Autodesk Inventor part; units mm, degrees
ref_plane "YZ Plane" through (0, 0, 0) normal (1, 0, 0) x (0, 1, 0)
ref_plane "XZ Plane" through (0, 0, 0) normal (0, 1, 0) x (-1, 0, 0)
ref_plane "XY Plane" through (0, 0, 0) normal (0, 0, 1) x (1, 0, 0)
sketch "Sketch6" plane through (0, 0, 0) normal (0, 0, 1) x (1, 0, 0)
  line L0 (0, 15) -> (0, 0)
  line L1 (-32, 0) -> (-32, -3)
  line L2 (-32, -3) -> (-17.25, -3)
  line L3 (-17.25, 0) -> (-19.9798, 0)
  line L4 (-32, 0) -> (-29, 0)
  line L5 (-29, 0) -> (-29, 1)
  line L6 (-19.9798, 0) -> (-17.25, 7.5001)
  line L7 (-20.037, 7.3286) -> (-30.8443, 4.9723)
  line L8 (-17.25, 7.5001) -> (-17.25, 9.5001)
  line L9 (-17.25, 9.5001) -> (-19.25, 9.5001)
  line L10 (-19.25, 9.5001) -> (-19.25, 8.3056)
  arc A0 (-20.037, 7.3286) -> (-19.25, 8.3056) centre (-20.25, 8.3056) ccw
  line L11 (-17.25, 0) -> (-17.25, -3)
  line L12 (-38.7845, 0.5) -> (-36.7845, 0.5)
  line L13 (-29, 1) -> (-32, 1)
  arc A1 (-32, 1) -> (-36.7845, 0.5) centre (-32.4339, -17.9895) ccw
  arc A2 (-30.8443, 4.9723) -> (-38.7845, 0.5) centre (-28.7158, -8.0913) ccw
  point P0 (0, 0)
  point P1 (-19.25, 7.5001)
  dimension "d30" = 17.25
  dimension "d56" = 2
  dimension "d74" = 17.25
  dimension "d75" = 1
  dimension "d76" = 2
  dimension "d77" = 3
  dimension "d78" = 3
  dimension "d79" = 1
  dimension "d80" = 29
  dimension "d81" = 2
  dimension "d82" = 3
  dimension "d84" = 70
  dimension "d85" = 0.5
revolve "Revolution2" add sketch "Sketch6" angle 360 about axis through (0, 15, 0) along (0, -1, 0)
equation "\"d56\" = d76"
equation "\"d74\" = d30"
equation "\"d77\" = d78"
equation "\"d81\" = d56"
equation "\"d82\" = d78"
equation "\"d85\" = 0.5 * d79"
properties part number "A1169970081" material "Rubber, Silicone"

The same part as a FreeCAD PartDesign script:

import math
import FreeCAD as App
import Part
import Sketcher
Q = App.Units.Quantity

doc = App.newDocument("Part")
params = doc.addObject("Spreadsheet::Sheet", "Params")
for row, (alias, value) in enumerate([
    ("sketch1_radius", "1 mm"),
    ("sketch1_width", "3 mm"),
    ("sketch1_width2", "2 mm"),
    ("sketch1_height", "1 mm"),
    ("revolution_angle", "360 deg"),
], start=1):
    params.set(f"A{row}", alias)
    params.set(f"B{row}", "=" + value)
    params.setAlias(f"B{row}", alias)

body = doc.addObject("PartDesign::Body", "Body")

sketch1 = body.newObject("Sketcher::SketchObject", "Sketch")
sketch1.AttachmentSupport = (doc.getObject("XY_Plane"), [""])
sketch1.MapMode = "FlatFace"
sketch1.addGeometry(Part.LineSegment(App.Vector(-29, 0, 0), App.Vector(-32, 0, 0)), False)
sketch1.addGeometry(Part.LineSegment(App.Vector(-32, 0, 0), App.Vector(-32, -3, 0)), False)
sketch1.addGeometry(Part.LineSegment(App.Vector(-32, -3, 0), App.Vector(-17.2, -3, 0)), False)
sketch1.addGeometry(Part.LineSegment(App.Vector(-17.2, -3, 0), App.Vector(-17.2, 0, 0)), False)
sketch1.addGeometry(Part.LineSegment(App.Vector(-17.2, 0, 0), App.Vector(-20, 0, 0)), False)
sketch1.addGeometry(Part.LineSegment(App.Vector(-20, 0, 0), App.Vector(-17.2, 7.5, 0)), False)
sketch1.addGeometry(Part.LineSegment(App.Vector(-17.2, 7.5, 0), App.Vector(-17.2, 9.5, 0)), False)
sketch1.addGeometry(Part.LineSegment(App.Vector(-17.2, 9.5, 0), App.Vector(-19.2, 9.5, 0)), False)
sketch1.addGeometry(Part.LineSegment(App.Vector(-19.2, 9.5, 0), App.Vector(-19.2, 8.3, 0)), False)
sketch1.addGeometry(Part.ArcOfCircle(Part.Circle(App.Vector(-20.2, 8.3, 0), App.Vector(0, 0, 1), 1), math.radians(-78), math.radians(0)), False)
sketch1.addGeometry(Part.LineSegment(App.Vector(-20, 7.3, 0), App.Vector(-30.8, 5, 0)), False)
sketch1.addGeometry(Part.ArcOfCircle(Part.Circle(App.Vector(-28.7, -8.1, 0), App.Vector(0, 0, 1), 13.2), math.radians(99), math.radians(140)), False)
sketch1.addGeometry(Part.LineSegment(App.Vector(-38.8, 0.5, 0), App.Vector(-36.8, 0.5, 0)), False)
sketch1.addGeometry(Part.ArcOfCircle(Part.Circle(App.Vector(-32.4, -18, 0), App.Vector(0, 0, 1), 19), math.radians(88.69), math.radians(103.24)), False)
sketch1.addGeometry(Part.LineSegment(App.Vector(-32, 1, 0), App.Vector(-29, 1, 0)), False)
sketch1.addGeometry(Part.LineSegment(App.Vector(-29, 1, 0), App.Vector(-29, 0, 0)), False)
sketch1.addConstraint(Sketcher.Constraint("Coincident", 0, 2, 1, 1))
sketch1.addConstraint(Sketcher.Constraint("Coincident", 1, 2, 2, 1))
sketch1.addConstraint(Sketcher.Constraint("Coincident", 2, 2, 3, 1))
sketch1.addConstraint(Sketcher.Constraint("Coincident", 3, 2, 4, 1))
sketch1.addConstraint(Sketcher.Constraint("Coincident", 4, 2, 5, 1))
sketch1.addConstraint(Sketcher.Constraint("Coincident", 5, 2, 6, 1))
sketch1.addConstraint(Sketcher.Constraint("Coincident", 6, 2, 7, 1))
sketch1.addConstraint(Sketcher.Constraint("Coincident", 7, 2, 8, 1))
sketch1.addConstraint(Sketcher.Constraint("Tangent", 8, 2, 9, 2))
sketch1.addConstraint(Sketcher.Constraint("Tangent", 9, 1, 10, 1))
sketch1.addConstraint(Sketcher.Constraint("Coincident", 10, 2, 11, 1))
sketch1.addConstraint(Sketcher.Constraint("Coincident", 11, 2, 12, 1))
sketch1.addConstraint(Sketcher.Constraint("Coincident", 12, 2, 13, 2))
sketch1.addConstraint(Sketcher.Constraint("Coincident", 13, 1, 14, 1))
sketch1.addConstraint(Sketcher.Constraint("Coincident", 14, 2, 15, 1))
sketch1.addConstraint(Sketcher.Constraint("Coincident", 15, 2, 0, 1))
sketch1.addConstraint(Sketcher.Constraint("Horizontal", 0))
sketch1.addConstraint(Sketcher.Constraint("Vertical", 1))
sketch1.addConstraint(Sketcher.Constraint("Horizontal", 2))
sketch1.addConstraint(Sketcher.Constraint("Vertical", 3))
sketch1.addConstraint(Sketcher.Constraint("Horizontal", 4))
sketch1.addConstraint(Sketcher.Constraint("Vertical", 6))
sketch1.addConstraint(Sketcher.Constraint("Horizontal", 7))
sketch1.addConstraint(Sketcher.Constraint("Vertical", 8))
sketch1.addConstraint(Sketcher.Constraint("Horizontal", 12))
sketch1.addConstraint(Sketcher.Constraint("Horizontal", 14))
sketch1.addConstraint(Sketcher.Constraint("Vertical", 15))
sketch1.addConstraint(Sketcher.Constraint("PointOnObject", 0, 2, -1))
sketch1.addConstraint(Sketcher.Constraint("PointOnObject", 3, 2, -1))
sketch1.addConstraint(Sketcher.Constraint("Vertical", 3, 2, 5, 2))
sketch1.addConstraint(Sketcher.Constraint("Vertical", 1, 2, 13, 1))
sketch1.addConstraint(Sketcher.Constraint("Equal", 7, 12))
sketch1.addConstraint(Sketcher.Constraint("Equal", 14, 1))
sketch1.addConstraint(Sketcher.Constraint("Equal", 12, 6))
sketch1.addConstraint(Sketcher.Constraint("Radius", 9, 1.0))
sketch1.addConstraint(Sketcher.Constraint("DistanceX", 0, 2, 0, 1, 3.0))
sketch1.addConstraint(Sketcher.Constraint("DistanceX", 7, 2, 7, 1, 2.0))
sketch1.addConstraint(Sketcher.Constraint("DistanceY", 15, 2, 15, 1, 1.0))
sketch1.addConstraint(Sketcher.Constraint("Angle", 5, Q("70 deg")))
sketch1.addConstraint(Sketcher.Constraint("DistanceX", 14, 2, -1, 1, 29.0))
sketch1.addConstraint(Sketcher.Constraint("DistanceY", -1, 1, 11, 2, 0.5))
sketch1.addConstraint(Sketcher.Constraint("DistanceX", 2, 2, -1, 1, 17.25))
sketch1.addConstraint(Sketcher.Constraint("Angle", 10, Q("-167.7004 deg")))
sketch1.addConstraint(Sketcher.Constraint("DistanceY", -1, 1, 5, 2, 7.5))
sketch1.addConstraint(Sketcher.Constraint("Radius", 11, 13.2359))
sketch1.addConstraint(Sketcher.Constraint("Radius", 13, 18.9945))
sketch1.addConstraint(Sketcher.Constraint("DistanceY", 8, 2, 8, 1, 1.1945))
sketch1.addConstraint(Sketcher.Constraint("DistanceX", 13, 3, -1, 1, 32.434))
sketch1.addConstraint(Sketcher.Constraint("DistanceY", 11, 3, 9, 3, 16.397))
sketch1.setExpression("Constraints[34]", "Params.sketch1_radius")
sketch1.setExpression("Constraints[35]", "Params.sketch1_width")
sketch1.setExpression("Constraints[36]", "Params.sketch1_width2")
sketch1.setExpression("Constraints[37]", "Params.sketch1_height")
revolution = body.newObject("PartDesign::Revolution", "Revolution")
revolution.Profile = sketch1
revolution.ReferenceAxis = (sketch1, ["V_Axis"])
revolution.setExpression("Angle", "Params.revolution_angle")

doc.recompute()
